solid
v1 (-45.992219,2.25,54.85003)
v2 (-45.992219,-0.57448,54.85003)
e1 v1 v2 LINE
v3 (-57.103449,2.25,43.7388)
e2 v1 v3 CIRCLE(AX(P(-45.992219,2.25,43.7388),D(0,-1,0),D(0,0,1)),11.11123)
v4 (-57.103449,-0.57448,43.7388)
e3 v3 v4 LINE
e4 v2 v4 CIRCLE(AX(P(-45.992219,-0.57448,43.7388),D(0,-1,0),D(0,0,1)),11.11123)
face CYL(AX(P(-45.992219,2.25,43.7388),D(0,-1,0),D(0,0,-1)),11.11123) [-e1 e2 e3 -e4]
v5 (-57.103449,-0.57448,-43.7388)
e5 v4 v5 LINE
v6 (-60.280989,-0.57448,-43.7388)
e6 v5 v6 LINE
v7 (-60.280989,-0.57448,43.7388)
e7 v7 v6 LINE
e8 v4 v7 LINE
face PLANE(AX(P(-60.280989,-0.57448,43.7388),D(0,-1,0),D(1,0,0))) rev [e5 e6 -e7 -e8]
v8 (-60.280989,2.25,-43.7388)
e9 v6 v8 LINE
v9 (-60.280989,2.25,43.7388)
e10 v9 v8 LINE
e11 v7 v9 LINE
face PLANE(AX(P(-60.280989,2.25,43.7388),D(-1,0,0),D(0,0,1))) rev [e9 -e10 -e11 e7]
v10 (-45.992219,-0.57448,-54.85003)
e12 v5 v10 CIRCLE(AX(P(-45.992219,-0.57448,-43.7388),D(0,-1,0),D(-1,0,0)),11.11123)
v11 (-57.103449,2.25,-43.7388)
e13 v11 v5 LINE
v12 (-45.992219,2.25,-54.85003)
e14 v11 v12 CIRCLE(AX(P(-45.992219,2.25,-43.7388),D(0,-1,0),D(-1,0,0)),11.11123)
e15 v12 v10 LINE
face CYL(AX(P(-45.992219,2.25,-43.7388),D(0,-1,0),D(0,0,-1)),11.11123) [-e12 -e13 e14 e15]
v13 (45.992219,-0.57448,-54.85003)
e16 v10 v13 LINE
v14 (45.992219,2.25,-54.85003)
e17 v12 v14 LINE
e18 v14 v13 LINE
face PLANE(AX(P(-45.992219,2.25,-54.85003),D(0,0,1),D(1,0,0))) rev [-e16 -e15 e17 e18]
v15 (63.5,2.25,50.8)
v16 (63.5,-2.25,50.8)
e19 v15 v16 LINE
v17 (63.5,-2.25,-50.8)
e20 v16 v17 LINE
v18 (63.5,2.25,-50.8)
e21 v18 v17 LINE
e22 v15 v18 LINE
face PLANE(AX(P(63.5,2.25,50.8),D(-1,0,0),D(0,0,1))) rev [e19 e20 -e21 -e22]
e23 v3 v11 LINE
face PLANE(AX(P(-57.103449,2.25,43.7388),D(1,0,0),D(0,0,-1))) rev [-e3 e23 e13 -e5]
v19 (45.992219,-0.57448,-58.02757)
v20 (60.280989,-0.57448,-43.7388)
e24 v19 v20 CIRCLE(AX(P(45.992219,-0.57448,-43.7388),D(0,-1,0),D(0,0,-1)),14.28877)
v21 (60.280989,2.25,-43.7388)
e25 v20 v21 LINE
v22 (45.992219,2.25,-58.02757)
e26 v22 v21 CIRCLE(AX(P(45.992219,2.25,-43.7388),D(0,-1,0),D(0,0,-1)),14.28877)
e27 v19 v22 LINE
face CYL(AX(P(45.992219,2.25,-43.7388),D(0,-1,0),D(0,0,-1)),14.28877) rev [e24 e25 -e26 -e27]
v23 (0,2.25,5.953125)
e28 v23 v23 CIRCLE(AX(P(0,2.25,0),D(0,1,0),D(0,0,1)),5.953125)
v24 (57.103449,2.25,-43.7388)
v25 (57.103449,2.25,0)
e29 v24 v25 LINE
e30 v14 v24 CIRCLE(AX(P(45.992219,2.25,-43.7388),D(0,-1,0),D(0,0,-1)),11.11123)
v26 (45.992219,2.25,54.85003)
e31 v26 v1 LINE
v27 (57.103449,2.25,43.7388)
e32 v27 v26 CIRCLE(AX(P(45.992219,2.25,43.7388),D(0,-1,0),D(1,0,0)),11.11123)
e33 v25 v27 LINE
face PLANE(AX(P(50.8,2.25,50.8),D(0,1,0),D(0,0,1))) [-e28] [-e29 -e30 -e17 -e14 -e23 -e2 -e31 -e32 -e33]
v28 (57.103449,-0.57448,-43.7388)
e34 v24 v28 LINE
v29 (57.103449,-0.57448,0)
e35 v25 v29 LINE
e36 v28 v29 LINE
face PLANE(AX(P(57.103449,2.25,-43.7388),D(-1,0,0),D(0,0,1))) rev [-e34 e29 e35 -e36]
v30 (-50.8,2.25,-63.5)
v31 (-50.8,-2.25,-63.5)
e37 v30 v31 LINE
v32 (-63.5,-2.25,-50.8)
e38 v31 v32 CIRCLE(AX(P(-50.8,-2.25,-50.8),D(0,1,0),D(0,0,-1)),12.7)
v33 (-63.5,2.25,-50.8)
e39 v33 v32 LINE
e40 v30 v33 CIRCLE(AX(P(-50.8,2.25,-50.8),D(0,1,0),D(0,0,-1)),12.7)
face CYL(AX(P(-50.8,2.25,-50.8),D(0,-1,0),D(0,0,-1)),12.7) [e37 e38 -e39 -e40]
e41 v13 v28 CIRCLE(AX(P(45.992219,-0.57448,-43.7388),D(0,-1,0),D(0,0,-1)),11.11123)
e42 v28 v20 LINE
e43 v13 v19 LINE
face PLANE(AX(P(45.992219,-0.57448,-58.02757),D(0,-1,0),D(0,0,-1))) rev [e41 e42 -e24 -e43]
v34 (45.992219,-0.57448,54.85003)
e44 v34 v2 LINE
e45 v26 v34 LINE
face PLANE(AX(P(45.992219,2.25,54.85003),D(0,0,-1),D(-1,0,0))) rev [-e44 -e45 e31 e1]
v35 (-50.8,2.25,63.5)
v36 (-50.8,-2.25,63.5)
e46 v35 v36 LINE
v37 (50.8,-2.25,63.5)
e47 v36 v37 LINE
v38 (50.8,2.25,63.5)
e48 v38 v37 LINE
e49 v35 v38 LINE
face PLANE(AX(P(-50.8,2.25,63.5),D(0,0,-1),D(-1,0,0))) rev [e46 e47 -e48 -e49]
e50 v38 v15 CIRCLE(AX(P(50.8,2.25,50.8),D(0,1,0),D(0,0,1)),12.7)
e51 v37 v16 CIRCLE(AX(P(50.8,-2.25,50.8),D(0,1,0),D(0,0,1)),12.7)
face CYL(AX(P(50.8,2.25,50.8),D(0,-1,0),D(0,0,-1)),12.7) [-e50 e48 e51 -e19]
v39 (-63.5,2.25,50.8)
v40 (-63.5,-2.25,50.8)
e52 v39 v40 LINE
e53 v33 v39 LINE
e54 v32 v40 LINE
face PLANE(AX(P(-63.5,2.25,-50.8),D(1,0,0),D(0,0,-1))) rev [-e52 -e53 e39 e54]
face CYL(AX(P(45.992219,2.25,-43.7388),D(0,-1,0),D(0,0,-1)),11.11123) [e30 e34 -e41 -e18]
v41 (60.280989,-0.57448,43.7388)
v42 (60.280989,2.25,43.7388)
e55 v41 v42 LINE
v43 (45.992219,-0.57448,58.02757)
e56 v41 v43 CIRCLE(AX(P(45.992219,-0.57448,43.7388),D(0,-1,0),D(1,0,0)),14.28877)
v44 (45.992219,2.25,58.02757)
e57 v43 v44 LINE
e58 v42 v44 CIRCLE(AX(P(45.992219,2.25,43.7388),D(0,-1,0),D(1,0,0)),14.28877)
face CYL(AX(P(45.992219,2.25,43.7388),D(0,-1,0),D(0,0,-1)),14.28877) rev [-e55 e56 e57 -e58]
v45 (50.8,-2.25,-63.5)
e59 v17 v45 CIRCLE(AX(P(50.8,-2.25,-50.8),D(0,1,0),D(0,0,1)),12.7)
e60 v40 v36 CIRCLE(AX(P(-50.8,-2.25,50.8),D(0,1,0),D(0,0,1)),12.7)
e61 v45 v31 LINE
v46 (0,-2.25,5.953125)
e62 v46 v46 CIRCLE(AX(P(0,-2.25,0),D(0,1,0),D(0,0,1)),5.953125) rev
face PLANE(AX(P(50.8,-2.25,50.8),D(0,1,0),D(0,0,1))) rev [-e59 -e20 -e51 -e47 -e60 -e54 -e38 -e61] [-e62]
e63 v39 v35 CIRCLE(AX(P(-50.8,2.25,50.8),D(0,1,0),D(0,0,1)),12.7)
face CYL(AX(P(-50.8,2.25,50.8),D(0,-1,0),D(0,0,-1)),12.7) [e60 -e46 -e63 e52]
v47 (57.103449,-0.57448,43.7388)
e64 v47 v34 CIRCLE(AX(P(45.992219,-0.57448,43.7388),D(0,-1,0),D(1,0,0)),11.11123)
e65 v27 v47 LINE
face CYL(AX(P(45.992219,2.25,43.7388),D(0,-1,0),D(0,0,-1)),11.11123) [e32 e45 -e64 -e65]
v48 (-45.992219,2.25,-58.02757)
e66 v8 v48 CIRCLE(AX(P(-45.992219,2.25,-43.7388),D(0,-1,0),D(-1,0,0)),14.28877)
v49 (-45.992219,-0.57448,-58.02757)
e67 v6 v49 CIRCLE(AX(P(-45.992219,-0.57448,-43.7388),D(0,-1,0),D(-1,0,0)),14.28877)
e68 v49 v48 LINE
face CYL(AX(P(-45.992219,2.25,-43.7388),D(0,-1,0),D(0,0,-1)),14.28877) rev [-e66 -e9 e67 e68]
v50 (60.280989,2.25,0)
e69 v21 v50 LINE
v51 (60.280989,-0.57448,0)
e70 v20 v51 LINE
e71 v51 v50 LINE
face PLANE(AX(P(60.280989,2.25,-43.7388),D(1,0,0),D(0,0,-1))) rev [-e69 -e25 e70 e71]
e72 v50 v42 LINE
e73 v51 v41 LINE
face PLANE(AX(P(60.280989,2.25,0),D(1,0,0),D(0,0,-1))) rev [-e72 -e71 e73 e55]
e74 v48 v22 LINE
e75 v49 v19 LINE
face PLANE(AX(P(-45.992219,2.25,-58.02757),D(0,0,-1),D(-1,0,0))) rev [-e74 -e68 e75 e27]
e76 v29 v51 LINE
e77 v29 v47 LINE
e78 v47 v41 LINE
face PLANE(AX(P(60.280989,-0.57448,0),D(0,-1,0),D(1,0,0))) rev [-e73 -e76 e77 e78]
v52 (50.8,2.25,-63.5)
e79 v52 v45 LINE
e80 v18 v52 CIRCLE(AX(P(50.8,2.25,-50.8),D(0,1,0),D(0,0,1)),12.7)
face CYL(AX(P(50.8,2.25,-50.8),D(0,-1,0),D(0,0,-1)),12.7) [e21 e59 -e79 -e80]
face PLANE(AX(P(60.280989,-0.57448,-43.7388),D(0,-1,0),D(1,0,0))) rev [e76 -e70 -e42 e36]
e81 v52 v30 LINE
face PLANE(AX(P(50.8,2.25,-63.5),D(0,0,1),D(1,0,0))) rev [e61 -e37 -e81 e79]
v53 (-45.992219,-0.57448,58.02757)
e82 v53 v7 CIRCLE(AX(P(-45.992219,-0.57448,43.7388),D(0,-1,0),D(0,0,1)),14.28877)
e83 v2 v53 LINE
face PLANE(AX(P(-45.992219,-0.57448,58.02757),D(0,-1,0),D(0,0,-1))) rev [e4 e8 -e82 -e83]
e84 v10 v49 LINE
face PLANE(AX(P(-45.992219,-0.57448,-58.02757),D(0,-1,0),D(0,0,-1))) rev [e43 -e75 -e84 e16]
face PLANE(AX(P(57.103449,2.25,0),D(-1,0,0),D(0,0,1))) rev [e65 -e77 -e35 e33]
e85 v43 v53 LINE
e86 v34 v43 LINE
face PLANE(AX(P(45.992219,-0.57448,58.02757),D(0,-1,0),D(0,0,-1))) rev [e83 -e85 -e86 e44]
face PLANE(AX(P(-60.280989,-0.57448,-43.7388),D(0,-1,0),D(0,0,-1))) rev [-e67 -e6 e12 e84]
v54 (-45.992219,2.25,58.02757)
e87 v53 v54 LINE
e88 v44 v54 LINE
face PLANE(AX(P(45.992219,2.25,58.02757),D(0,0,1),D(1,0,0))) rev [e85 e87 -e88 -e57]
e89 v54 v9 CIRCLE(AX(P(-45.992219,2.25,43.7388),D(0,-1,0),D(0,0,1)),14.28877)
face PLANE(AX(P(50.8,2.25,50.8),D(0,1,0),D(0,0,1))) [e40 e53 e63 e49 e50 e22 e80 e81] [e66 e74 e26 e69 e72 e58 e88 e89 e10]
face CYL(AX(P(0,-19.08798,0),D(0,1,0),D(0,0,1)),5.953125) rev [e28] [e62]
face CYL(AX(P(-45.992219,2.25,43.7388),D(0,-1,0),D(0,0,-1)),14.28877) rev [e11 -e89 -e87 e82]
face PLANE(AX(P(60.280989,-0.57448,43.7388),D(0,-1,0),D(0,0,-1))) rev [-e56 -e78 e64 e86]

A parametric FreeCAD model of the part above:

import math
import FreeCAD as App
import Part
import Sketcher
Q = App.Units.Quantity


def add_polygon(sketch, points):
    """Adds a closed chain of lines whose ends are joined by coincident constraints."""
    first, n = sketch.GeometryCount, len(points)
    for a, b in zip(points, points[1:] + points[:1]):
        sketch.addGeometry(Part.LineSegment(App.Vector(*a, 0), App.Vector(*b, 0)), False)
    for i in range(n):
        sketch.addConstraint(Sketcher.Constraint("Coincident", first + i, 2, first + (i + 1) % n, 1))

doc = App.newDocument("Part")
body = doc.addObject("PartDesign::Body", "Body")

# Sketch on XZ plane
sketch1 = body.newObject("Sketcher::SketchObject", "Sketch")
sketch1.AttachmentSupport = (doc.getObject("XZ_Plane"), [""])
sketch1.MapMode = "FlatFace"
sketch1.addGeometry([
    Part.LineSegment(App.Vector(-63.5, -50.8, 0), App.Vector(-63.5, 50.8, 0)),  # 0
    Part.ArcOfCircle(Part.Circle(App.Vector(-50.8, 50.8, 0), App.Vector(0, 0, 1), 12.7), math.radians(90), math.radians(180)),  # 1
    Part.LineSegment(App.Vector(-50.8, 63.5, 0), App.Vector(50.8, 63.5, 0)),  # 2
    Part.ArcOfCircle(Part.Circle(App.Vector(50.8, 50.8, 0), App.Vector(0, 0, 1), 12.7), math.radians(0), math.radians(90)),  # 3
    Part.LineSegment(App.Vector(63.5, 50.8, 0), App.Vector(63.5, -50.8, 0)),  # 4
    Part.ArcOfCircle(Part.Circle(App.Vector(50.8, -50.8, 0), App.Vector(0, 0, 1), 12.7), math.radians(-90), math.radians(0)),  # 5
    Part.LineSegment(App.Vector(50.8, -63.5, 0), App.Vector(-50.8, -63.5, 0)),  # 6
    Part.ArcOfCircle(Part.Circle(App.Vector(-50.8, -50.8, 0), App.Vector(0, 0, 1), 12.7), math.radians(180), math.radians(270)),  # 7
], False)
sketch1.addConstraint([
    Sketcher.Constraint("Tangent", 0, 2, 1, 2),
    Sketcher.Constraint("Tangent", 1, 1, 2, 1),
    Sketcher.Constraint("Tangent", 2, 2, 3, 2),
    Sketcher.Constraint("Tangent", 3, 1, 4, 1),
    Sketcher.Constraint("Tangent", 4, 2, 5, 2),
    Sketcher.Constraint("Tangent", 5, 1, 6, 1),
    Sketcher.Constraint("Tangent", 6, 2, 7, 2),
    Sketcher.Constraint("Tangent", 7, 1, 0, 1),
    Sketcher.Constraint("Vertical", 0),
    Sketcher.Constraint("Horizontal", 2),
    Sketcher.Constraint("Vertical", 4),
    Sketcher.Constraint("Horizontal", 6),
    Sketcher.Constraint("Equal", 1, 3),
    Sketcher.Constraint("Equal", 3, 5),
    Sketcher.Constraint("Equal", 5, 7),
    Sketcher.Constraint("Symmetric", 1, 3, 5, 3, -1, 1),
    Sketcher.Constraint("Equal", 6, 0),
    Sketcher.Constraint("Radius", 1, Q("0.5 in")),
    Sketcher.Constraint("DistanceX", 2, 1, 2, 2, Q("4 in")),
])
pad1 = body.newObject("PartDesign::Pad", "Pad")
pad1.Profile = sketch1
pad1.Length = 4.5
pad1.Midplane = True

# Sketch on XZ plane
sketch2 = body.newObject("Sketcher::SketchObject", "Sketch001")
sketch2.AttachmentSupport = (doc.getObject("XZ_Plane"), [""])
sketch2.MapMode = "FlatFace"
sketch2.AttachmentOffset = App.Placement(App.Vector(0, 0, -2.25), App.Rotation())
sketch2.addGeometry(Part.Circle(App.Vector(0, 0, 0), App.Vector(0, 0, 1), 5.953125), False)
sketch2.addConstraint([
    Sketcher.Constraint("Coincident", 0, 3, -1, 1),
    Sketcher.Constraint("Diameter", 0, Q("0.46875 in")),
])
pocket1 = body.newObject("PartDesign::Pocket", "Pocket")
pocket1.Profile = sketch2
pocket1.Length = 4.5
pocket1.Reversed = True

# Sketch on XY plane
sketch3 = body.newObject("Sketcher::SketchObject", "Sketch002")
sketch3.AttachmentSupport = (doc.getObject("XY_Plane"), [""])
sketch3.MapMode = "FlatFace"
add_polygon(sketch3, [(57.103449, 2.25), (57.103449, -0.57448), (60.280989, -0.57448), (60.280989, 2.25)])  # lines 0-3
sketch3.addConstraint([
    Sketcher.Constraint("Vertical", 0),
    Sketcher.Constraint("Horizontal", 1),
    Sketcher.Constraint("Vertical", 2),
    Sketcher.Constraint("Horizontal", 3),
    Sketcher.Constraint("DistanceX", 1, 1, 1, 2, Q("0.1251 in")),
    Sketcher.Constraint("DistanceY", 0, 2, 0, 1, Q("0.1112 in")),
    Sketcher.Constraint("DistanceY", -1, 1, 2, 2, Q("2.25 mm")),
    Sketcher.Constraint("DistanceX", -1, 1, 0, 2, Q("57.103449 mm")),
])

# Sketch on XZ plane
sketch4 = body.newObject("Sketcher::SketchObject", "Sketch003")
sketch4.AttachmentSupport = (doc.getObject("XZ_Plane"), [""])
sketch4.MapMode = "FlatFace"
sketch4.AttachmentOffset = App.Placement(App.Vector(0, 0, -2.25), App.Rotation())
sketch4.addGeometry([
    Part.LineSegment(App.Vector(-45.992219, 56.4388, 0), App.Vector(45.992219, 56.4388, 0)),  # 0
    Part.ArcOfCircle(Part.Circle(App.Vector(45.992219, 43.7388, 0), App.Vector(0, 0, 1), 12.7), math.radians(0), math.radians(90)),  # 1
    Part.LineSegment(App.Vector(58.692219, 43.7388, 0), App.Vector(58.692219, -43.7388, 0)),  # 2
    Part.ArcOfCircle(Part.Circle(App.Vector(45.992219, -43.7388, 0), App.Vector(0, 0, 1), 12.7), math.radians(-90), math.radians(0)),  # 3
    Part.LineSegment(App.Vector(45.992219, -56.4388, 0), App.Vector(-45.992219, -56.4388, 0)),  # 4
    Part.ArcOfCircle(Part.Circle(App.Vector(-45.992219, -43.7388, 0), App.Vector(0, 0, 1), 12.7), math.radians(180), math.radians(270)),  # 5
    Part.LineSegment(App.Vector(-58.692219, -43.7388, 0), App.Vector(-58.692219, 43.7388, 0)),  # 6
    Part.ArcOfCircle(Part.Circle(App.Vector(-45.992219, 43.7388, 0), App.Vector(0, 0, 1), 12.7), math.radians(90), math.radians(180)),  # 7
], False)
sketch4.addConstraint([
    Sketcher.Constraint("Tangent", 0, 2, 1, 2),
    Sketcher.Constraint("Tangent", 1, 1, 2, 1),
    Sketcher.Constraint("Tangent", 2, 2, 3, 2),
    Sketcher.Constraint("Tangent", 3, 1, 4, 1),
    Sketcher.Constraint("Tangent", 4, 2, 5, 2),
    Sketcher.Constraint("Tangent", 5, 1, 6, 1),
    Sketcher.Constraint("Tangent", 6, 2, 7, 2),
    Sketcher.Constraint("Tangent", 7, 1, 0, 1),
    Sketcher.Constraint("Horizontal", 0),
    Sketcher.Constraint("Vertical", 2),
    Sketcher.Constraint("Horizontal", 4),
    Sketcher.Constraint("Vertical", 6),
    Sketcher.Constraint("Equal", 1, 3),
    Sketcher.Constraint("Equal", 3, 5),
    Sketcher.Constraint("Equal", 5, 7),
    Sketcher.Constraint("Symmetric", 1, 3, 5, 3, -1, 1),
    Sketcher.Constraint("Radius", 1, Q("0.5 in")),
    Sketcher.Constraint("DistanceY", 2, 2, 2, 1, Q("3.444 in")),
    Sketcher.Constraint("DistanceX", 0, 1, 0, 2, Q("91.984438 mm")),
])
doc.recompute()

subtractivepipe = body.newObject("PartDesign::SubtractivePipe", "SubtractivePipe")
subtractivepipe.Profile = sketch3
subtractivepipe.Spine = (sketch4, ["Edge1", "Edge2", "Edge3", "Edge4", "Edge5", "Edge6", "Edge7", "Edge8"])

doc.recompute()
